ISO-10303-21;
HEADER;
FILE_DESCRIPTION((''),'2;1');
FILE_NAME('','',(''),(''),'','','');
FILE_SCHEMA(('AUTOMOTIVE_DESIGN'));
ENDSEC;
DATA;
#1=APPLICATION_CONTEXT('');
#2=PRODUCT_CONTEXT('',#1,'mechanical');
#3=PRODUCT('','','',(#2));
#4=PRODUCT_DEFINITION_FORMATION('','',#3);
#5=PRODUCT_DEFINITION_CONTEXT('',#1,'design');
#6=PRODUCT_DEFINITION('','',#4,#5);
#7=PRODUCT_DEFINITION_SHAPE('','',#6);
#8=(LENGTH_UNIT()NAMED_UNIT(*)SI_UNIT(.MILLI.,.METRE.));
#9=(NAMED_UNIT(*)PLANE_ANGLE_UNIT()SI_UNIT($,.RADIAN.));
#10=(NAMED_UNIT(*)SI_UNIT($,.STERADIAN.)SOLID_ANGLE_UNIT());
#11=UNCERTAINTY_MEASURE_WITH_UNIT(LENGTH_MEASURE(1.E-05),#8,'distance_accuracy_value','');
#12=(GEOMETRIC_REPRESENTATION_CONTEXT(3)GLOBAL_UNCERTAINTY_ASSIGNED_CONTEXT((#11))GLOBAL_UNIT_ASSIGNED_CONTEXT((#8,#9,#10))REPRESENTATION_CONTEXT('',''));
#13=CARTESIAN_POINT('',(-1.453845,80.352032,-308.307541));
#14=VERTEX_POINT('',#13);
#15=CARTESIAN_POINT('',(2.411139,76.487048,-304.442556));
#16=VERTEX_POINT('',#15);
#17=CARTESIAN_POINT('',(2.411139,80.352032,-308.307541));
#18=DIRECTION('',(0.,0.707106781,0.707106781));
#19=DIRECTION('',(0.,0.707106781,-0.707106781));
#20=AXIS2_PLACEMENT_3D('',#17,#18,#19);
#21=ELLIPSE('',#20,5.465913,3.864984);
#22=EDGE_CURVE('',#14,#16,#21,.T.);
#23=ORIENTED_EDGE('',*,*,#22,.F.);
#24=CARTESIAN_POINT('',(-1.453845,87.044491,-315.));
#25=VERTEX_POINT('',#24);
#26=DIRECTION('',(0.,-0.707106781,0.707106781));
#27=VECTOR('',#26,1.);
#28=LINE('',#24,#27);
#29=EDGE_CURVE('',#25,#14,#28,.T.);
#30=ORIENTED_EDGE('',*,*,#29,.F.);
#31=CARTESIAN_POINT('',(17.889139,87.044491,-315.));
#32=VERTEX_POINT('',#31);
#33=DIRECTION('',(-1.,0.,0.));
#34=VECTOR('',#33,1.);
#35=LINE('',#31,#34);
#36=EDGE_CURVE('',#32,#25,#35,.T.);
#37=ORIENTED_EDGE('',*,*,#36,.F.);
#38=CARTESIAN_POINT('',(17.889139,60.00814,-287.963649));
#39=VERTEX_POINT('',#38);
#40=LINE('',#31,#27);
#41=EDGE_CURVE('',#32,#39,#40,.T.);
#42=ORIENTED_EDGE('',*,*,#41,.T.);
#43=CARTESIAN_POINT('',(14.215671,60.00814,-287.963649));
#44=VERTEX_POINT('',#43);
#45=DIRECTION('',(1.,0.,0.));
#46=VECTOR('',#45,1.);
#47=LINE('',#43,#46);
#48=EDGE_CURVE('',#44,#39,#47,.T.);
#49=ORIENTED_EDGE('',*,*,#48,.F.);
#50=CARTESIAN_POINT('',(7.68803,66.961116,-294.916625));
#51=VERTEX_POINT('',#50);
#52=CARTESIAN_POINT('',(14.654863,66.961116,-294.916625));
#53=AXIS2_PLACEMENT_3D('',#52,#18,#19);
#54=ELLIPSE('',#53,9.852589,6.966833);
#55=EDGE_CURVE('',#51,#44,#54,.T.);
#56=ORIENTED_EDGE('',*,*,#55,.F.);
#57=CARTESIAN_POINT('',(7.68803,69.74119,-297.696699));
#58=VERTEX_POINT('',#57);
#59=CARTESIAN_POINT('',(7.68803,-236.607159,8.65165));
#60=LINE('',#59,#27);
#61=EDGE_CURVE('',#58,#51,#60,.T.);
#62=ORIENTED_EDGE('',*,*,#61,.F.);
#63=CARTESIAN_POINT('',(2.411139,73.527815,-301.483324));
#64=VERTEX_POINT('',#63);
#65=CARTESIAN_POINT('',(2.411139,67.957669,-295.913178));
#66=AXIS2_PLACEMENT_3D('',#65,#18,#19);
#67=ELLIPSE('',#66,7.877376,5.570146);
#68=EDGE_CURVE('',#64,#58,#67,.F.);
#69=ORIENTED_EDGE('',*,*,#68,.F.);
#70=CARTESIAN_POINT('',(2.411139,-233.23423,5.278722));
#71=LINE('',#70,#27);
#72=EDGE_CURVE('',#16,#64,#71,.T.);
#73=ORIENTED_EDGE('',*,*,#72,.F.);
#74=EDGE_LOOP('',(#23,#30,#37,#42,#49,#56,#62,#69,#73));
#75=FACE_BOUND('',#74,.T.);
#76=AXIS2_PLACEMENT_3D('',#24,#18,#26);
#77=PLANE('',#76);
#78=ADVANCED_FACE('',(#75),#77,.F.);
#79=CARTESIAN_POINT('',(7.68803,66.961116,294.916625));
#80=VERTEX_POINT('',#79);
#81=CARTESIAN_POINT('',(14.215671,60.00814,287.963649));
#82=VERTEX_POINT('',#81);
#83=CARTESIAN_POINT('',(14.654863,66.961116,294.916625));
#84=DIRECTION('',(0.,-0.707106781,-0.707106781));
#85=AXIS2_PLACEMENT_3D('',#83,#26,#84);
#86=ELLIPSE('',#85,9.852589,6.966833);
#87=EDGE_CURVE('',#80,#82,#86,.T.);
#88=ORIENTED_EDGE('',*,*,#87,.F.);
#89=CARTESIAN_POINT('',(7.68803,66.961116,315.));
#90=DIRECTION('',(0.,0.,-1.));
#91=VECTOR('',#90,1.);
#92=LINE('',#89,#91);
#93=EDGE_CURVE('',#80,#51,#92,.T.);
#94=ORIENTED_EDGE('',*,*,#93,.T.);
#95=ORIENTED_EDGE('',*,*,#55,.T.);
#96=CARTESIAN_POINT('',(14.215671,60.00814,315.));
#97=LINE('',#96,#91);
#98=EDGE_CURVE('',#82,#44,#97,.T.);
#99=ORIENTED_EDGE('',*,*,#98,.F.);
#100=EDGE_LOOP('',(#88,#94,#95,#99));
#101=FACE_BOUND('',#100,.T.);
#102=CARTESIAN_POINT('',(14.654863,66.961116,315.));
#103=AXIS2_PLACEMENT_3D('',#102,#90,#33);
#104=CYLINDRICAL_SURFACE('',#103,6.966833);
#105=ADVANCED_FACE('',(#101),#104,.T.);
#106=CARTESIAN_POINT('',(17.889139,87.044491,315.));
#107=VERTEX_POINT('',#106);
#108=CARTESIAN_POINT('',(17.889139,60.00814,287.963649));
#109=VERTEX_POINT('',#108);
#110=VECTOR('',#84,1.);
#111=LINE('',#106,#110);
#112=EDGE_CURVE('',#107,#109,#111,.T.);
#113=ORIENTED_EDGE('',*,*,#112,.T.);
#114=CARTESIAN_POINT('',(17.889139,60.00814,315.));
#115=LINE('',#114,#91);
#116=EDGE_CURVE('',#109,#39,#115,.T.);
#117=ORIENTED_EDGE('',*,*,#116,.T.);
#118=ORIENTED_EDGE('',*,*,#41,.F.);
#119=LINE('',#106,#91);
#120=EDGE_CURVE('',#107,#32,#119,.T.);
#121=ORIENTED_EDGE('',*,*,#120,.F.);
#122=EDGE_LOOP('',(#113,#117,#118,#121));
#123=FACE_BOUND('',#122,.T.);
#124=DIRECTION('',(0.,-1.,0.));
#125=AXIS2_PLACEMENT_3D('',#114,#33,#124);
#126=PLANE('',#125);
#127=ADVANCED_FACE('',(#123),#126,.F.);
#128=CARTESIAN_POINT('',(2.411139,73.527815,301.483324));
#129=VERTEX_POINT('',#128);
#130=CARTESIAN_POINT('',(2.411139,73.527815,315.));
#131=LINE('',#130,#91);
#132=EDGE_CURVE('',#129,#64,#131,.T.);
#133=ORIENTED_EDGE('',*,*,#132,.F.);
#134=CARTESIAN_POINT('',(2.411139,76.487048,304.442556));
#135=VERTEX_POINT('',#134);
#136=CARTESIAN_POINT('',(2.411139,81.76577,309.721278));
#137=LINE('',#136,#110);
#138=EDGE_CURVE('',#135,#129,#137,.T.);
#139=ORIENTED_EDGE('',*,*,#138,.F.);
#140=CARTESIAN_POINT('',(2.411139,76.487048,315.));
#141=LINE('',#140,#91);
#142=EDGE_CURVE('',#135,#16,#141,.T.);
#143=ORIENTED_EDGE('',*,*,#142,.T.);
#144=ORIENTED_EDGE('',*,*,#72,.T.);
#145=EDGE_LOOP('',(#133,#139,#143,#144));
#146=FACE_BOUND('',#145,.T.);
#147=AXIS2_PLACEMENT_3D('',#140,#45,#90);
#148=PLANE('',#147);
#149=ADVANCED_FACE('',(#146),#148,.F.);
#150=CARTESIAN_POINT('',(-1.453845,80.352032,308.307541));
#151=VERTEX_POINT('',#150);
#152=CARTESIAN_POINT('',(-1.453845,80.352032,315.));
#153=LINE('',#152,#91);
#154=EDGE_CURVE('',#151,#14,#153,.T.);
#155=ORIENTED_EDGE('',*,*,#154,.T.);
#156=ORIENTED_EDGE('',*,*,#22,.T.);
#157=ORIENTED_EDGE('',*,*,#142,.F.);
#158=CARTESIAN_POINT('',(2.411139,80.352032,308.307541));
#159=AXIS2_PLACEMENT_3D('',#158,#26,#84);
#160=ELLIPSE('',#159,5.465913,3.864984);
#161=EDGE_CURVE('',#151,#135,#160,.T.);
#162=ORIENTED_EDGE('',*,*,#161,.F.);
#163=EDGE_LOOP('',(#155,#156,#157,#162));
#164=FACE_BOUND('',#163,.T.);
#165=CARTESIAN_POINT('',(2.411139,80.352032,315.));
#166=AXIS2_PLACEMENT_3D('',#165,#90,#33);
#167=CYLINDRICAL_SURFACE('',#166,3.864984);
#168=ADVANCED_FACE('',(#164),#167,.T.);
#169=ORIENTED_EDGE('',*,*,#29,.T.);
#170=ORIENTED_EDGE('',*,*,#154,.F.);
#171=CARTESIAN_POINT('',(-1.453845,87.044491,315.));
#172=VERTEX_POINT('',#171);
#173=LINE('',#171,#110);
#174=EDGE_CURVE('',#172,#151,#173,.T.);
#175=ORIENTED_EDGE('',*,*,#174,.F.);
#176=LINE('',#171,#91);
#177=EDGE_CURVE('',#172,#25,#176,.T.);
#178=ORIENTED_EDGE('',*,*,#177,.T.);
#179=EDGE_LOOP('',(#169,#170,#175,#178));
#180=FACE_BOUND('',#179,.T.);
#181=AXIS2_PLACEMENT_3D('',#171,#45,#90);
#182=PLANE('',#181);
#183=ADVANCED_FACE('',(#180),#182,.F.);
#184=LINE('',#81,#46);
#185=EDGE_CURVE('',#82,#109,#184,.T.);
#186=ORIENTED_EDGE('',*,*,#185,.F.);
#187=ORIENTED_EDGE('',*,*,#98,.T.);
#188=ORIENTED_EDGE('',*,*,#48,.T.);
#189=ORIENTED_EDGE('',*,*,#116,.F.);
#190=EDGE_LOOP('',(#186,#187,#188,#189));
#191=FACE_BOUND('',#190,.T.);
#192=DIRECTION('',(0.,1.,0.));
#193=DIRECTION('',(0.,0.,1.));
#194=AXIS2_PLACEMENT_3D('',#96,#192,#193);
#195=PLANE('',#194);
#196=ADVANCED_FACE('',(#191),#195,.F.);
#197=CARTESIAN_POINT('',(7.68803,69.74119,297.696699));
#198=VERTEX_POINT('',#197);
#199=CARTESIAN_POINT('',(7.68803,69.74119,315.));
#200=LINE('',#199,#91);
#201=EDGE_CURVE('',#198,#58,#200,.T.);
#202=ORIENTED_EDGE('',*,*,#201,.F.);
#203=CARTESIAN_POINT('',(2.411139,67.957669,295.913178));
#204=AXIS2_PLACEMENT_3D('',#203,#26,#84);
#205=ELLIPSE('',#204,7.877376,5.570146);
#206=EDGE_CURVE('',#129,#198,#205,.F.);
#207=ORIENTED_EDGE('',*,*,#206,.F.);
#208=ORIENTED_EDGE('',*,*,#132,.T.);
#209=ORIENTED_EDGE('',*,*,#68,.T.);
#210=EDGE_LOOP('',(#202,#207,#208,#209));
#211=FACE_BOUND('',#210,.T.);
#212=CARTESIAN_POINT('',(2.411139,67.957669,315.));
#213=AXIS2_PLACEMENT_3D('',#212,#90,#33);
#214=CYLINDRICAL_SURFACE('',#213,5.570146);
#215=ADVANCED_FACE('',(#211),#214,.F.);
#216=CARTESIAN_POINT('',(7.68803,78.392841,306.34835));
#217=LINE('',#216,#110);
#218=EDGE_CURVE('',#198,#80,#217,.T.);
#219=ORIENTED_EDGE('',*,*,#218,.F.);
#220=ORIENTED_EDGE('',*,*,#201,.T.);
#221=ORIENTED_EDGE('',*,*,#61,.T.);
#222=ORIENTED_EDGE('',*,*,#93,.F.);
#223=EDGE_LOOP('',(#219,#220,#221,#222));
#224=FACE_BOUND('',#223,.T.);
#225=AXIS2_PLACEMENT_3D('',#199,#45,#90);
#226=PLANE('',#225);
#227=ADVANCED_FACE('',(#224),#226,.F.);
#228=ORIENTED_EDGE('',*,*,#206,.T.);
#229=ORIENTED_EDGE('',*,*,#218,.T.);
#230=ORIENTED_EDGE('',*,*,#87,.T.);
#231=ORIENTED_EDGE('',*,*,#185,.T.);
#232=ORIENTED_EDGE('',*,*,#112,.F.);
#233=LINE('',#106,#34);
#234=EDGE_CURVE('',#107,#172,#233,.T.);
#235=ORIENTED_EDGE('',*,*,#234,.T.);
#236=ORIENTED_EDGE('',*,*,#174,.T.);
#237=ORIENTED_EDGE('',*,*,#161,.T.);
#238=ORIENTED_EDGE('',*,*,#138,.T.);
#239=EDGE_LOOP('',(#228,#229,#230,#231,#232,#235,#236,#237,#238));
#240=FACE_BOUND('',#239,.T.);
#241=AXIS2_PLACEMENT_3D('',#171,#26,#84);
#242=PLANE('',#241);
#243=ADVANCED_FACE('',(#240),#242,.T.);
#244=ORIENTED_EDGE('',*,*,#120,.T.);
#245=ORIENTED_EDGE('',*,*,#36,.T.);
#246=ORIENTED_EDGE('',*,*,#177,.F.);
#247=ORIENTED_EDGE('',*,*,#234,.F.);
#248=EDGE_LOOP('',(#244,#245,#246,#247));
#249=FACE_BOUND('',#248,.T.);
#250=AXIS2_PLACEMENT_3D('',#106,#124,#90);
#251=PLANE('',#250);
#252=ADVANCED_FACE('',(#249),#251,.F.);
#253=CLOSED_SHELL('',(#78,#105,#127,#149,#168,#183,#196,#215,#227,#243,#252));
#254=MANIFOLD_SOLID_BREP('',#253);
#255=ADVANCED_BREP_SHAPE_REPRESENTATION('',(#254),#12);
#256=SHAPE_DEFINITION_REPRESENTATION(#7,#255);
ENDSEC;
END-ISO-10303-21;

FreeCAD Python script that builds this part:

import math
import FreeCAD as App
import Part
import Sketcher

V = App.Vector
Q = App.Units.Quantity


def add_polygon(sketch, points):
    """Adds a closed chain of lines whose ends are joined by coincident constraints."""
    first, n = sketch.GeometryCount, len(points)
    for a, b in zip(points, points[1:] + points[:1]):
        sketch.addGeometry(Part.LineSegment(App.Vector(*a, 0), App.Vector(*b, 0)), False)
    for i in range(n):
        sketch.addConstraint(Sketcher.Constraint("Coincident", first + i, 2, first + (i + 1) % n, 1))

doc = App.newDocument("Part")
body = doc.addObject("PartDesign::Body", "Body")

sketch1 = body.newObject("Sketcher::SketchObject", "Sketch")
sketch1.AttachmentSupport = (doc.getObject("XY_Plane"), [""])
sketch1.MapMode = "FlatFace"
sketch1.addGeometry([
    Part.LineSegment(V(17.9, 87, 0), V(-1.5, 87, 0)),
    Part.LineSegment(V(-1.5, 87, 0), V(-1.5, 80.4, 0)),
    Part.ArcOfCircle(Part.Circle(V(2.4, 80.4, 0), V(0, 0, 1), 3.9), math.radians(180), math.radians(270)),
    Part.LineSegment(V(2.4, 76.5, 0), V(2.4, 73.5, 0)),
    Part.ArcOfCircle(Part.Circle(V(2.4, 68, 0), V(0, 0, 1), 5.6), math.radians(19), math.radians(90)),
    Part.LineSegment(V(7.7, 69.7, 0), V(7.7, 67, 0)),
    Part.ArcOfCircle(Part.Circle(V(14.7, 67, 0), V(0, 0, 1), 7), math.radians(180), math.radians(266)),
    Part.LineSegment(V(14.2, 60, 0), V(17.9, 60, 0)),
    Part.LineSegment(V(17.9, 60, 0), V(17.9, 87, 0)),
], False)
sketch1.addConstraint([
    Sketcher.Constraint("Coincident", 0, 2, 1, 1),
    Sketcher.Constraint("Tangent", 1, 2, 2, 1),
    Sketcher.Constraint("Coincident", 2, 2, 3, 1),
    Sketcher.Constraint("Coincident", 3, 2, 4, 2),
    Sketcher.Constraint("Coincident", 4, 1, 5, 1),
    Sketcher.Constraint("Tangent", 5, 2, 6, 1),
    Sketcher.Constraint("Coincident", 6, 2, 7, 1),
    Sketcher.Constraint("Coincident", 7, 2, 8, 1),
    Sketcher.Constraint("Coincident", 8, 2, 0, 1),
    Sketcher.Constraint("Horizontal", 0),
    Sketcher.Constraint("Vertical", 1),
    Sketcher.Constraint("Vertical", 3),
    Sketcher.Constraint("Vertical", 5),
    Sketcher.Constraint("Horizontal", 7),
    Sketcher.Constraint("Vertical", 8),
    Sketcher.Constraint("Vertical", 2, 3, 4, 3),
    Sketcher.Constraint("Vertical", 4, 3, 2, 2),
    Sketcher.Constraint("Radius", 2, Q("3.864984 mm")),
    Sketcher.Constraint("Radius", 4, Q("5.570146 mm")),
    Sketcher.Constraint("Radius", 6, Q("6.966833 mm")),
    Sketcher.Constraint("DistanceX", 4, 3, 7, 2, Q("15.478 mm")),
    Sketcher.Constraint("DistanceX", 7, 1, 7, 2, Q("3.673468 mm")),
    Sketcher.Constraint("DistanceY", 1, 2, 1, 1, Q("6.692459 mm")),
    Sketcher.Constraint("DistanceY", 8, 1, 8, 2, Q("27.036351 mm")),
    Sketcher.Constraint("DistanceY", 6, 3, 3, 2, Q("6.566699 mm")),
    Sketcher.Constraint("DistanceY", 4, 1, 8, 2, Q("17.303301 mm")),
    Sketcher.Constraint("DistanceX", -1, 1, 2, 3, Q("2.411139 mm")),
    Sketcher.Constraint("DistanceY", -1, 1, 2, 3, Q("80.352032 mm")),
])
pad1 = body.newObject("PartDesign::Pad", "Pad")
pad1.Profile = sketch1
pad1.Length = 630
pad1.Midplane = True

sketch2 = body.newObject("Sketcher::SketchObject", "Sketch001")
sketch2.AttachmentSupport = (doc.getObject("YZ_Plane"), [""])
sketch2.MapMode = "FlatFace"
add_polygon(sketch2, [(87, -315), (27, -255), (27, -315)])
sketch2.addConstraint([
    Sketcher.Constraint("Vertical", 1),
    Sketcher.Constraint("Horizontal", 2),
    Sketcher.Constraint("Equal", 2, 1),
    Sketcher.Constraint("DistanceX", 2, 1, 2, 2, Q("60 mm")),
    Sketcher.Constraint("DistanceY", 0, 2, -1, 1, Q("255 mm")),
    Sketcher.Constraint("DistanceX", -1, 1, 0, 2, Q("27.044491 mm")),
])
pocket1 = body.newObject("PartDesign::Pocket", "Pocket")
pocket1.Profile = sketch2
pocket1.Length = 656.589229
pocket1.Midplane = True
doc.recompute()

mirrored = body.newObject("PartDesign::Mirrored", "Mirrored")
mirrored.Originals = [pocket1]
mirrored.MirrorPlane = (doc.getObject("XY_Plane"), [""])
body.Tip = mirrored

doc.recompute()
